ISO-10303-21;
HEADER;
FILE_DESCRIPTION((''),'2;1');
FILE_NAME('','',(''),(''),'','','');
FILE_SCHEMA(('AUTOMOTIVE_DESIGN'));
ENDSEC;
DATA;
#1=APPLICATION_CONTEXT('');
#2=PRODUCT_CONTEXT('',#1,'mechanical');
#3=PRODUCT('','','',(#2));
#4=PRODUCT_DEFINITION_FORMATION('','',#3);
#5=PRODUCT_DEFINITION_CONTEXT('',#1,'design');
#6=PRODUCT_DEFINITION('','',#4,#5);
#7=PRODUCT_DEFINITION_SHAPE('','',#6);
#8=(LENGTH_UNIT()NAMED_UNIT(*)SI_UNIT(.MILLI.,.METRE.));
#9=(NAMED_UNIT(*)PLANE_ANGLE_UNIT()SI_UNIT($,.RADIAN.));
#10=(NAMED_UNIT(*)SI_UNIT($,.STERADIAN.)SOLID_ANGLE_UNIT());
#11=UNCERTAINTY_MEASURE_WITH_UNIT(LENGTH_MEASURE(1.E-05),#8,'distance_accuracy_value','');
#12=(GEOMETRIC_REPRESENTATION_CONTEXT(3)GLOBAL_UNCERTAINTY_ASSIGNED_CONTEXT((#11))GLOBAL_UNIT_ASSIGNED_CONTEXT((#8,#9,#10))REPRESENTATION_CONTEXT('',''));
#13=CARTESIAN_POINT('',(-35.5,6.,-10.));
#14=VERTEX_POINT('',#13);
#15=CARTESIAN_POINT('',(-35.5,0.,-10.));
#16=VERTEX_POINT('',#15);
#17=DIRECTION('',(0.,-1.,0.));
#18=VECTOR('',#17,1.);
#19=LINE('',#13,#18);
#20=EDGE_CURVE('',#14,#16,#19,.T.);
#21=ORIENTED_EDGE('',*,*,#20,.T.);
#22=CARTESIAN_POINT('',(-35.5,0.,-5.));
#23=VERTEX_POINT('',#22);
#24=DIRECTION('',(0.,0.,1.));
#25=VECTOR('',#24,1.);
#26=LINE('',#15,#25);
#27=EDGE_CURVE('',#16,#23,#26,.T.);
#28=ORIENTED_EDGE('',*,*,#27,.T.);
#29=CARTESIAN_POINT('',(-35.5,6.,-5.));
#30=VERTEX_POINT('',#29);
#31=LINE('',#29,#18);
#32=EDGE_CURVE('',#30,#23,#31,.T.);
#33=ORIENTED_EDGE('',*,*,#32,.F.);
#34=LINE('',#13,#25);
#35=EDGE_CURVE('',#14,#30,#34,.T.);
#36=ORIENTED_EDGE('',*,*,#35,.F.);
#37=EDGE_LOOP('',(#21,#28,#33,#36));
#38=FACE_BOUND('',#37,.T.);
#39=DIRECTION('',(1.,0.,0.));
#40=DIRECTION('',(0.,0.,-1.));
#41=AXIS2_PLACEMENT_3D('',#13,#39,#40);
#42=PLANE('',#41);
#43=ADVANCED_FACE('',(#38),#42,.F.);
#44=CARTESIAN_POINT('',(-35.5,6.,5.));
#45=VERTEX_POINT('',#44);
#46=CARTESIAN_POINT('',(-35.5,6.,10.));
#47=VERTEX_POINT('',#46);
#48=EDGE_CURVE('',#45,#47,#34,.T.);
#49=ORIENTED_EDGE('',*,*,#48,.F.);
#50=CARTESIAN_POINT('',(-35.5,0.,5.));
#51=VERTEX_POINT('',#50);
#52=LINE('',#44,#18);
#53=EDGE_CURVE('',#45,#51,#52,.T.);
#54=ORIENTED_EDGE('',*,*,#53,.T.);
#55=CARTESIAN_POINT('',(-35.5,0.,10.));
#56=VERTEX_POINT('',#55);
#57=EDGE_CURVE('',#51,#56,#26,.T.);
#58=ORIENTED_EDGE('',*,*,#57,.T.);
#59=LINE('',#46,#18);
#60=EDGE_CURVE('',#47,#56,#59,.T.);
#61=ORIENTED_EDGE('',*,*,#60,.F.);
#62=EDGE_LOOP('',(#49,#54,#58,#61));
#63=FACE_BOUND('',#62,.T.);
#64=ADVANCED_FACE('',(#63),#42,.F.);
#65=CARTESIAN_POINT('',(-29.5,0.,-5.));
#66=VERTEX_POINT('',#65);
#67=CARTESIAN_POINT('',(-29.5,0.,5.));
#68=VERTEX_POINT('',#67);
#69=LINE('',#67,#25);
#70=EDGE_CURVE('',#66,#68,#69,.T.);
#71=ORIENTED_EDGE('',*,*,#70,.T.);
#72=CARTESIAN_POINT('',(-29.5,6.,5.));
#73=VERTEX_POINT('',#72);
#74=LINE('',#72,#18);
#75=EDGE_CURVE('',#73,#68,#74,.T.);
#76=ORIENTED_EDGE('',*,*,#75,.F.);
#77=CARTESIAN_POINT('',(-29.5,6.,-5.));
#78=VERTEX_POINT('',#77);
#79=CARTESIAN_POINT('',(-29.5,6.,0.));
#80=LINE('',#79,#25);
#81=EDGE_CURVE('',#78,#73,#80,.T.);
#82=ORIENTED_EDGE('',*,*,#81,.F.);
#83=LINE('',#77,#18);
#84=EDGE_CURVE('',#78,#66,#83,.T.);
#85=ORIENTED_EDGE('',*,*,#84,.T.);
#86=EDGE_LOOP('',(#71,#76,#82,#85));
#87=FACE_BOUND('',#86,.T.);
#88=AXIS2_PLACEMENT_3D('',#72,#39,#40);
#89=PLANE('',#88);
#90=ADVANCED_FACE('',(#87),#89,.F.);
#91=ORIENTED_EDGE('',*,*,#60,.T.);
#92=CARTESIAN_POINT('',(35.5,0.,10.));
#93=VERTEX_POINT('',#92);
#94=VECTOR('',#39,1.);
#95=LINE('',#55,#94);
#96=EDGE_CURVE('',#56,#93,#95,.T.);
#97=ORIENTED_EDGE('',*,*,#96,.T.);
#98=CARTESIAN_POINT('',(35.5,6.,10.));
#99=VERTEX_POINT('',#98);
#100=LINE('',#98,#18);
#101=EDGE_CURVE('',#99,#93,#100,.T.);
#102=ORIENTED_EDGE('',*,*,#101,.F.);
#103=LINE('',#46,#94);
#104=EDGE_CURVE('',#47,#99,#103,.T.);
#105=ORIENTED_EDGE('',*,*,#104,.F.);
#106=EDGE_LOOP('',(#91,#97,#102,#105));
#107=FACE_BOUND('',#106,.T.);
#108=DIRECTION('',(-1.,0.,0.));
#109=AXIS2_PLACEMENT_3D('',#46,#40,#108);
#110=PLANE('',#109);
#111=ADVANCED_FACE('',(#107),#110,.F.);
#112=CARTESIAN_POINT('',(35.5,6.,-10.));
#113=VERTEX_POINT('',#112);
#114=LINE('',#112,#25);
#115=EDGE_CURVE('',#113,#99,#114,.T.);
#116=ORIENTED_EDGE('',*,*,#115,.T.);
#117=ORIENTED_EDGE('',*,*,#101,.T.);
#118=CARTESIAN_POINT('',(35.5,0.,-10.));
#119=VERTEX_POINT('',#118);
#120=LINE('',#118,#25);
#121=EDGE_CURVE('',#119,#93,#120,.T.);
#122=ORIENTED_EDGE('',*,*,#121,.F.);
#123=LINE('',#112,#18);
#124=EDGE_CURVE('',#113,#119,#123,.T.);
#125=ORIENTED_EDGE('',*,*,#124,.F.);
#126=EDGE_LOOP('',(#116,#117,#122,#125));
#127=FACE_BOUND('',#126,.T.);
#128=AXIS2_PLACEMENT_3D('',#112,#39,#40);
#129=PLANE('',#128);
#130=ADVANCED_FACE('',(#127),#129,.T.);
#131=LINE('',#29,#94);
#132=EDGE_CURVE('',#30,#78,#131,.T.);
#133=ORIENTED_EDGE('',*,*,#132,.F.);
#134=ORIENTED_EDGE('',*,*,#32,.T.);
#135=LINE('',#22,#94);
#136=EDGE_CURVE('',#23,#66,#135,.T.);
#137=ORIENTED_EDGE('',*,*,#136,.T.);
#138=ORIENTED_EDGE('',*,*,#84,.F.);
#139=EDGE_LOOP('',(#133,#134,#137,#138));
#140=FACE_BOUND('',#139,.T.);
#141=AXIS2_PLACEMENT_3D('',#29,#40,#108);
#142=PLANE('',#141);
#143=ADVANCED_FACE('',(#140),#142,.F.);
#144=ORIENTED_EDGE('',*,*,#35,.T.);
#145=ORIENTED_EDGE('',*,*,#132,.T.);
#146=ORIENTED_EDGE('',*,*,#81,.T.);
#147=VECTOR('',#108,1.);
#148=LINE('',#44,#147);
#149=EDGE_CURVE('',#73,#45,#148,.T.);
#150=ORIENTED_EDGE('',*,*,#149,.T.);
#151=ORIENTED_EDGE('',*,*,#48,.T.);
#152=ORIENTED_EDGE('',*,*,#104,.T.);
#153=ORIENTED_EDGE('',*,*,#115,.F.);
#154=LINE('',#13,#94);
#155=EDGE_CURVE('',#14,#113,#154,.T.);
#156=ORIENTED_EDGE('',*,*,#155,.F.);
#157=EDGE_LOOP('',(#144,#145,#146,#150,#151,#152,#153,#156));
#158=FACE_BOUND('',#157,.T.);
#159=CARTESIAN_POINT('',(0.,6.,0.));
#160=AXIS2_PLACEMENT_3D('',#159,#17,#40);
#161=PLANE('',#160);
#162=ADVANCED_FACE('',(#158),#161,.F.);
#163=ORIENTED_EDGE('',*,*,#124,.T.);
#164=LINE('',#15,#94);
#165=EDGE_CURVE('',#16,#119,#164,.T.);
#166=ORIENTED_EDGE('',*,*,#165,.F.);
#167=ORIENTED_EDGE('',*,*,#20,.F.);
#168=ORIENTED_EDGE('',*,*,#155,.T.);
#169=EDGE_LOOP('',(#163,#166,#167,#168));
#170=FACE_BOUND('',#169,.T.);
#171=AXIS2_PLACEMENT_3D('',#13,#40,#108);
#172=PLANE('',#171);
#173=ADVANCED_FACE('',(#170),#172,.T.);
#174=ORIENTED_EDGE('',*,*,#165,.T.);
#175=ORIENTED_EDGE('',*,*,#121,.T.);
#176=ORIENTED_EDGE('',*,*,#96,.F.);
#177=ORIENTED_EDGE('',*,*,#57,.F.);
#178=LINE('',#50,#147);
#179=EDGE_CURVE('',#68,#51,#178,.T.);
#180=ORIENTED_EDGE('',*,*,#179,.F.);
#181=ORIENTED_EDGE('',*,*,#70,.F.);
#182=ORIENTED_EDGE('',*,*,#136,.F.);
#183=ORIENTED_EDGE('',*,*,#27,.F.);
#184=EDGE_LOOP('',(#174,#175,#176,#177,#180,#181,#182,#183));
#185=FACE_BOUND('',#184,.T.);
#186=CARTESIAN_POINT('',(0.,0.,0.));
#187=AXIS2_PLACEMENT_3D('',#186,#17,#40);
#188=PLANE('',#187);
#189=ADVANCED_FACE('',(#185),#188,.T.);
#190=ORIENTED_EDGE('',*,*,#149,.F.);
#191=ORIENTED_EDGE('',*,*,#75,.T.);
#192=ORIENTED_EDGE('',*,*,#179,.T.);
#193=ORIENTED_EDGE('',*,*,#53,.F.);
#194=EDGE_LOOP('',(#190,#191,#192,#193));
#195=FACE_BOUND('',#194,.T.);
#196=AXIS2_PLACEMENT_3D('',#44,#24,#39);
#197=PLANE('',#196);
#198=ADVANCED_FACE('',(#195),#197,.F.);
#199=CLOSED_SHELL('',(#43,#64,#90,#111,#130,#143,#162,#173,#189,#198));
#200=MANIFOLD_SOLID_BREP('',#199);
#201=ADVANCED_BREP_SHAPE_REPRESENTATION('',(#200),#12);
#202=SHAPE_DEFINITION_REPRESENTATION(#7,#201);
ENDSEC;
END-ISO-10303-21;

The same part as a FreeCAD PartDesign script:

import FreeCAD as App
import Part
import Sketcher
Q = App.Units.Quantity

doc = App.newDocument("Part")
params = doc.addObject("Spreadsheet::Sheet", "Params")
for row, (alias, value) in enumerate([
    ("sketch1_width", "71 mm"),
    ("sketch1_height", "20 mm"),
    ("pad1_length", "6 mm"),
    ("sketch2_width", "6 mm"),
    ("sketch2_height", "10 mm"),
], start=1):
    params.set(f"A{row}", alias)
    params.set(f"B{row}", "=" + value)
    params.setAlias(f"B{row}", alias)

body = doc.addObject("PartDesign::Body", "Body")

sketch1 = body.newObject("Sketcher::SketchObject", "Sketch")
sketch1.AttachmentSupport = (doc.getObject("XZ_Plane"), [""])
sketch1.MapMode = "FlatFace"
sketch1.addGeometry([
    Part.LineSegment(App.Vector(-36, -10, 0), App.Vector(-36, 10, 0)),
    Part.LineSegment(App.Vector(-36, 10, 0), App.Vector(36, 10, 0)),
    Part.LineSegment(App.Vector(36, 10, 0), App.Vector(36, -10, 0)),
    Part.LineSegment(App.Vector(36, -10, 0), App.Vector(-36, -10, 0)),
], False)
sketch1.addConstraint([
    Sketcher.Constraint("Coincident", 0, 2, 1, 1),
    Sketcher.Constraint("Coincident", 1, 2, 2, 1),
    Sketcher.Constraint("Coincident", 2, 2, 3, 1),
    Sketcher.Constraint("Coincident", 3, 2, 0, 1),
    Sketcher.Constraint("Vertical", 0),
    Sketcher.Constraint("Horizontal", 1),
    Sketcher.Constraint("Vertical", 2),
    Sketcher.Constraint("Horizontal", 3),
    Sketcher.Constraint("Symmetric", 0, 2, 2, 2, -1, 1),
    Sketcher.Constraint("DistanceX", 1, 1, 1, 2, Q("71 mm")),
    Sketcher.Constraint("DistanceY", 0, 1, 0, 2, Q("20 mm")),
])
sketch1.setExpression("Constraints[9]", "Params.sketch1_width")
sketch1.setExpression("Constraints[10]", "Params.sketch1_height")
pad1 = body.newObject("PartDesign::Pad", "Pad")
pad1.Profile = sketch1
pad1.setExpression("Length", "Params.pad1_length")
pad1.Reversed = True

sketch2 = body.newObject("Sketcher::SketchObject", "Sketch001")
sketch2.AttachmentSupport = (doc.getObject("XZ_Plane"), [""])
sketch2.MapMode = "FlatFace"
sketch2.addGeometry([
    Part.LineSegment(App.Vector(-30, 5, 0), App.Vector(-36, 5, 0)),
    Part.LineSegment(App.Vector(-36, 5, 0), App.Vector(-36, -5, 0)),
    Part.LineSegment(App.Vector(-36, -5, 0), App.Vector(-30, -5, 0)),
    Part.LineSegment(App.Vector(-30, -5, 0), App.Vector(-30, 5, 0)),
], False)
sketch2.addConstraint([
    Sketcher.Constraint("Coincident", 0, 2, 1, 1),
    Sketcher.Constraint("Coincident", 1, 2, 2, 1),
    Sketcher.Constraint("Coincident", 2, 2, 3, 1),
    Sketcher.Constraint("Coincident", 3, 2, 0, 1),
    Sketcher.Constraint("Horizontal", 0),
    Sketcher.Constraint("Vertical", 1),
    Sketcher.Constraint("Horizontal", 2),
    Sketcher.Constraint("Vertical", 3),
    Sketcher.Constraint("DistanceX", 0, 2, 0, 1, Q("6 mm")),
    Sketcher.Constraint("DistanceY", 1, 2, 1, 1, Q("10 mm")),
    Sketcher.Constraint("DistanceY", -1, 1, 0, 2, Q("5 mm")),
    Sketcher.Constraint("DistanceX", 0, 2, -1, 1, Q("35.5 mm")),
])
sketch2.setExpression("Constraints[8]", "Params.sketch2_width")
sketch2.setExpression("Constraints[9]", "Params.sketch2_height")
pocket1 = body.newObject("PartDesign::Pocket", "Pocket")
pocket1.Profile = sketch2
pocket1.Type = "ThroughAll"

doc.recompute()
